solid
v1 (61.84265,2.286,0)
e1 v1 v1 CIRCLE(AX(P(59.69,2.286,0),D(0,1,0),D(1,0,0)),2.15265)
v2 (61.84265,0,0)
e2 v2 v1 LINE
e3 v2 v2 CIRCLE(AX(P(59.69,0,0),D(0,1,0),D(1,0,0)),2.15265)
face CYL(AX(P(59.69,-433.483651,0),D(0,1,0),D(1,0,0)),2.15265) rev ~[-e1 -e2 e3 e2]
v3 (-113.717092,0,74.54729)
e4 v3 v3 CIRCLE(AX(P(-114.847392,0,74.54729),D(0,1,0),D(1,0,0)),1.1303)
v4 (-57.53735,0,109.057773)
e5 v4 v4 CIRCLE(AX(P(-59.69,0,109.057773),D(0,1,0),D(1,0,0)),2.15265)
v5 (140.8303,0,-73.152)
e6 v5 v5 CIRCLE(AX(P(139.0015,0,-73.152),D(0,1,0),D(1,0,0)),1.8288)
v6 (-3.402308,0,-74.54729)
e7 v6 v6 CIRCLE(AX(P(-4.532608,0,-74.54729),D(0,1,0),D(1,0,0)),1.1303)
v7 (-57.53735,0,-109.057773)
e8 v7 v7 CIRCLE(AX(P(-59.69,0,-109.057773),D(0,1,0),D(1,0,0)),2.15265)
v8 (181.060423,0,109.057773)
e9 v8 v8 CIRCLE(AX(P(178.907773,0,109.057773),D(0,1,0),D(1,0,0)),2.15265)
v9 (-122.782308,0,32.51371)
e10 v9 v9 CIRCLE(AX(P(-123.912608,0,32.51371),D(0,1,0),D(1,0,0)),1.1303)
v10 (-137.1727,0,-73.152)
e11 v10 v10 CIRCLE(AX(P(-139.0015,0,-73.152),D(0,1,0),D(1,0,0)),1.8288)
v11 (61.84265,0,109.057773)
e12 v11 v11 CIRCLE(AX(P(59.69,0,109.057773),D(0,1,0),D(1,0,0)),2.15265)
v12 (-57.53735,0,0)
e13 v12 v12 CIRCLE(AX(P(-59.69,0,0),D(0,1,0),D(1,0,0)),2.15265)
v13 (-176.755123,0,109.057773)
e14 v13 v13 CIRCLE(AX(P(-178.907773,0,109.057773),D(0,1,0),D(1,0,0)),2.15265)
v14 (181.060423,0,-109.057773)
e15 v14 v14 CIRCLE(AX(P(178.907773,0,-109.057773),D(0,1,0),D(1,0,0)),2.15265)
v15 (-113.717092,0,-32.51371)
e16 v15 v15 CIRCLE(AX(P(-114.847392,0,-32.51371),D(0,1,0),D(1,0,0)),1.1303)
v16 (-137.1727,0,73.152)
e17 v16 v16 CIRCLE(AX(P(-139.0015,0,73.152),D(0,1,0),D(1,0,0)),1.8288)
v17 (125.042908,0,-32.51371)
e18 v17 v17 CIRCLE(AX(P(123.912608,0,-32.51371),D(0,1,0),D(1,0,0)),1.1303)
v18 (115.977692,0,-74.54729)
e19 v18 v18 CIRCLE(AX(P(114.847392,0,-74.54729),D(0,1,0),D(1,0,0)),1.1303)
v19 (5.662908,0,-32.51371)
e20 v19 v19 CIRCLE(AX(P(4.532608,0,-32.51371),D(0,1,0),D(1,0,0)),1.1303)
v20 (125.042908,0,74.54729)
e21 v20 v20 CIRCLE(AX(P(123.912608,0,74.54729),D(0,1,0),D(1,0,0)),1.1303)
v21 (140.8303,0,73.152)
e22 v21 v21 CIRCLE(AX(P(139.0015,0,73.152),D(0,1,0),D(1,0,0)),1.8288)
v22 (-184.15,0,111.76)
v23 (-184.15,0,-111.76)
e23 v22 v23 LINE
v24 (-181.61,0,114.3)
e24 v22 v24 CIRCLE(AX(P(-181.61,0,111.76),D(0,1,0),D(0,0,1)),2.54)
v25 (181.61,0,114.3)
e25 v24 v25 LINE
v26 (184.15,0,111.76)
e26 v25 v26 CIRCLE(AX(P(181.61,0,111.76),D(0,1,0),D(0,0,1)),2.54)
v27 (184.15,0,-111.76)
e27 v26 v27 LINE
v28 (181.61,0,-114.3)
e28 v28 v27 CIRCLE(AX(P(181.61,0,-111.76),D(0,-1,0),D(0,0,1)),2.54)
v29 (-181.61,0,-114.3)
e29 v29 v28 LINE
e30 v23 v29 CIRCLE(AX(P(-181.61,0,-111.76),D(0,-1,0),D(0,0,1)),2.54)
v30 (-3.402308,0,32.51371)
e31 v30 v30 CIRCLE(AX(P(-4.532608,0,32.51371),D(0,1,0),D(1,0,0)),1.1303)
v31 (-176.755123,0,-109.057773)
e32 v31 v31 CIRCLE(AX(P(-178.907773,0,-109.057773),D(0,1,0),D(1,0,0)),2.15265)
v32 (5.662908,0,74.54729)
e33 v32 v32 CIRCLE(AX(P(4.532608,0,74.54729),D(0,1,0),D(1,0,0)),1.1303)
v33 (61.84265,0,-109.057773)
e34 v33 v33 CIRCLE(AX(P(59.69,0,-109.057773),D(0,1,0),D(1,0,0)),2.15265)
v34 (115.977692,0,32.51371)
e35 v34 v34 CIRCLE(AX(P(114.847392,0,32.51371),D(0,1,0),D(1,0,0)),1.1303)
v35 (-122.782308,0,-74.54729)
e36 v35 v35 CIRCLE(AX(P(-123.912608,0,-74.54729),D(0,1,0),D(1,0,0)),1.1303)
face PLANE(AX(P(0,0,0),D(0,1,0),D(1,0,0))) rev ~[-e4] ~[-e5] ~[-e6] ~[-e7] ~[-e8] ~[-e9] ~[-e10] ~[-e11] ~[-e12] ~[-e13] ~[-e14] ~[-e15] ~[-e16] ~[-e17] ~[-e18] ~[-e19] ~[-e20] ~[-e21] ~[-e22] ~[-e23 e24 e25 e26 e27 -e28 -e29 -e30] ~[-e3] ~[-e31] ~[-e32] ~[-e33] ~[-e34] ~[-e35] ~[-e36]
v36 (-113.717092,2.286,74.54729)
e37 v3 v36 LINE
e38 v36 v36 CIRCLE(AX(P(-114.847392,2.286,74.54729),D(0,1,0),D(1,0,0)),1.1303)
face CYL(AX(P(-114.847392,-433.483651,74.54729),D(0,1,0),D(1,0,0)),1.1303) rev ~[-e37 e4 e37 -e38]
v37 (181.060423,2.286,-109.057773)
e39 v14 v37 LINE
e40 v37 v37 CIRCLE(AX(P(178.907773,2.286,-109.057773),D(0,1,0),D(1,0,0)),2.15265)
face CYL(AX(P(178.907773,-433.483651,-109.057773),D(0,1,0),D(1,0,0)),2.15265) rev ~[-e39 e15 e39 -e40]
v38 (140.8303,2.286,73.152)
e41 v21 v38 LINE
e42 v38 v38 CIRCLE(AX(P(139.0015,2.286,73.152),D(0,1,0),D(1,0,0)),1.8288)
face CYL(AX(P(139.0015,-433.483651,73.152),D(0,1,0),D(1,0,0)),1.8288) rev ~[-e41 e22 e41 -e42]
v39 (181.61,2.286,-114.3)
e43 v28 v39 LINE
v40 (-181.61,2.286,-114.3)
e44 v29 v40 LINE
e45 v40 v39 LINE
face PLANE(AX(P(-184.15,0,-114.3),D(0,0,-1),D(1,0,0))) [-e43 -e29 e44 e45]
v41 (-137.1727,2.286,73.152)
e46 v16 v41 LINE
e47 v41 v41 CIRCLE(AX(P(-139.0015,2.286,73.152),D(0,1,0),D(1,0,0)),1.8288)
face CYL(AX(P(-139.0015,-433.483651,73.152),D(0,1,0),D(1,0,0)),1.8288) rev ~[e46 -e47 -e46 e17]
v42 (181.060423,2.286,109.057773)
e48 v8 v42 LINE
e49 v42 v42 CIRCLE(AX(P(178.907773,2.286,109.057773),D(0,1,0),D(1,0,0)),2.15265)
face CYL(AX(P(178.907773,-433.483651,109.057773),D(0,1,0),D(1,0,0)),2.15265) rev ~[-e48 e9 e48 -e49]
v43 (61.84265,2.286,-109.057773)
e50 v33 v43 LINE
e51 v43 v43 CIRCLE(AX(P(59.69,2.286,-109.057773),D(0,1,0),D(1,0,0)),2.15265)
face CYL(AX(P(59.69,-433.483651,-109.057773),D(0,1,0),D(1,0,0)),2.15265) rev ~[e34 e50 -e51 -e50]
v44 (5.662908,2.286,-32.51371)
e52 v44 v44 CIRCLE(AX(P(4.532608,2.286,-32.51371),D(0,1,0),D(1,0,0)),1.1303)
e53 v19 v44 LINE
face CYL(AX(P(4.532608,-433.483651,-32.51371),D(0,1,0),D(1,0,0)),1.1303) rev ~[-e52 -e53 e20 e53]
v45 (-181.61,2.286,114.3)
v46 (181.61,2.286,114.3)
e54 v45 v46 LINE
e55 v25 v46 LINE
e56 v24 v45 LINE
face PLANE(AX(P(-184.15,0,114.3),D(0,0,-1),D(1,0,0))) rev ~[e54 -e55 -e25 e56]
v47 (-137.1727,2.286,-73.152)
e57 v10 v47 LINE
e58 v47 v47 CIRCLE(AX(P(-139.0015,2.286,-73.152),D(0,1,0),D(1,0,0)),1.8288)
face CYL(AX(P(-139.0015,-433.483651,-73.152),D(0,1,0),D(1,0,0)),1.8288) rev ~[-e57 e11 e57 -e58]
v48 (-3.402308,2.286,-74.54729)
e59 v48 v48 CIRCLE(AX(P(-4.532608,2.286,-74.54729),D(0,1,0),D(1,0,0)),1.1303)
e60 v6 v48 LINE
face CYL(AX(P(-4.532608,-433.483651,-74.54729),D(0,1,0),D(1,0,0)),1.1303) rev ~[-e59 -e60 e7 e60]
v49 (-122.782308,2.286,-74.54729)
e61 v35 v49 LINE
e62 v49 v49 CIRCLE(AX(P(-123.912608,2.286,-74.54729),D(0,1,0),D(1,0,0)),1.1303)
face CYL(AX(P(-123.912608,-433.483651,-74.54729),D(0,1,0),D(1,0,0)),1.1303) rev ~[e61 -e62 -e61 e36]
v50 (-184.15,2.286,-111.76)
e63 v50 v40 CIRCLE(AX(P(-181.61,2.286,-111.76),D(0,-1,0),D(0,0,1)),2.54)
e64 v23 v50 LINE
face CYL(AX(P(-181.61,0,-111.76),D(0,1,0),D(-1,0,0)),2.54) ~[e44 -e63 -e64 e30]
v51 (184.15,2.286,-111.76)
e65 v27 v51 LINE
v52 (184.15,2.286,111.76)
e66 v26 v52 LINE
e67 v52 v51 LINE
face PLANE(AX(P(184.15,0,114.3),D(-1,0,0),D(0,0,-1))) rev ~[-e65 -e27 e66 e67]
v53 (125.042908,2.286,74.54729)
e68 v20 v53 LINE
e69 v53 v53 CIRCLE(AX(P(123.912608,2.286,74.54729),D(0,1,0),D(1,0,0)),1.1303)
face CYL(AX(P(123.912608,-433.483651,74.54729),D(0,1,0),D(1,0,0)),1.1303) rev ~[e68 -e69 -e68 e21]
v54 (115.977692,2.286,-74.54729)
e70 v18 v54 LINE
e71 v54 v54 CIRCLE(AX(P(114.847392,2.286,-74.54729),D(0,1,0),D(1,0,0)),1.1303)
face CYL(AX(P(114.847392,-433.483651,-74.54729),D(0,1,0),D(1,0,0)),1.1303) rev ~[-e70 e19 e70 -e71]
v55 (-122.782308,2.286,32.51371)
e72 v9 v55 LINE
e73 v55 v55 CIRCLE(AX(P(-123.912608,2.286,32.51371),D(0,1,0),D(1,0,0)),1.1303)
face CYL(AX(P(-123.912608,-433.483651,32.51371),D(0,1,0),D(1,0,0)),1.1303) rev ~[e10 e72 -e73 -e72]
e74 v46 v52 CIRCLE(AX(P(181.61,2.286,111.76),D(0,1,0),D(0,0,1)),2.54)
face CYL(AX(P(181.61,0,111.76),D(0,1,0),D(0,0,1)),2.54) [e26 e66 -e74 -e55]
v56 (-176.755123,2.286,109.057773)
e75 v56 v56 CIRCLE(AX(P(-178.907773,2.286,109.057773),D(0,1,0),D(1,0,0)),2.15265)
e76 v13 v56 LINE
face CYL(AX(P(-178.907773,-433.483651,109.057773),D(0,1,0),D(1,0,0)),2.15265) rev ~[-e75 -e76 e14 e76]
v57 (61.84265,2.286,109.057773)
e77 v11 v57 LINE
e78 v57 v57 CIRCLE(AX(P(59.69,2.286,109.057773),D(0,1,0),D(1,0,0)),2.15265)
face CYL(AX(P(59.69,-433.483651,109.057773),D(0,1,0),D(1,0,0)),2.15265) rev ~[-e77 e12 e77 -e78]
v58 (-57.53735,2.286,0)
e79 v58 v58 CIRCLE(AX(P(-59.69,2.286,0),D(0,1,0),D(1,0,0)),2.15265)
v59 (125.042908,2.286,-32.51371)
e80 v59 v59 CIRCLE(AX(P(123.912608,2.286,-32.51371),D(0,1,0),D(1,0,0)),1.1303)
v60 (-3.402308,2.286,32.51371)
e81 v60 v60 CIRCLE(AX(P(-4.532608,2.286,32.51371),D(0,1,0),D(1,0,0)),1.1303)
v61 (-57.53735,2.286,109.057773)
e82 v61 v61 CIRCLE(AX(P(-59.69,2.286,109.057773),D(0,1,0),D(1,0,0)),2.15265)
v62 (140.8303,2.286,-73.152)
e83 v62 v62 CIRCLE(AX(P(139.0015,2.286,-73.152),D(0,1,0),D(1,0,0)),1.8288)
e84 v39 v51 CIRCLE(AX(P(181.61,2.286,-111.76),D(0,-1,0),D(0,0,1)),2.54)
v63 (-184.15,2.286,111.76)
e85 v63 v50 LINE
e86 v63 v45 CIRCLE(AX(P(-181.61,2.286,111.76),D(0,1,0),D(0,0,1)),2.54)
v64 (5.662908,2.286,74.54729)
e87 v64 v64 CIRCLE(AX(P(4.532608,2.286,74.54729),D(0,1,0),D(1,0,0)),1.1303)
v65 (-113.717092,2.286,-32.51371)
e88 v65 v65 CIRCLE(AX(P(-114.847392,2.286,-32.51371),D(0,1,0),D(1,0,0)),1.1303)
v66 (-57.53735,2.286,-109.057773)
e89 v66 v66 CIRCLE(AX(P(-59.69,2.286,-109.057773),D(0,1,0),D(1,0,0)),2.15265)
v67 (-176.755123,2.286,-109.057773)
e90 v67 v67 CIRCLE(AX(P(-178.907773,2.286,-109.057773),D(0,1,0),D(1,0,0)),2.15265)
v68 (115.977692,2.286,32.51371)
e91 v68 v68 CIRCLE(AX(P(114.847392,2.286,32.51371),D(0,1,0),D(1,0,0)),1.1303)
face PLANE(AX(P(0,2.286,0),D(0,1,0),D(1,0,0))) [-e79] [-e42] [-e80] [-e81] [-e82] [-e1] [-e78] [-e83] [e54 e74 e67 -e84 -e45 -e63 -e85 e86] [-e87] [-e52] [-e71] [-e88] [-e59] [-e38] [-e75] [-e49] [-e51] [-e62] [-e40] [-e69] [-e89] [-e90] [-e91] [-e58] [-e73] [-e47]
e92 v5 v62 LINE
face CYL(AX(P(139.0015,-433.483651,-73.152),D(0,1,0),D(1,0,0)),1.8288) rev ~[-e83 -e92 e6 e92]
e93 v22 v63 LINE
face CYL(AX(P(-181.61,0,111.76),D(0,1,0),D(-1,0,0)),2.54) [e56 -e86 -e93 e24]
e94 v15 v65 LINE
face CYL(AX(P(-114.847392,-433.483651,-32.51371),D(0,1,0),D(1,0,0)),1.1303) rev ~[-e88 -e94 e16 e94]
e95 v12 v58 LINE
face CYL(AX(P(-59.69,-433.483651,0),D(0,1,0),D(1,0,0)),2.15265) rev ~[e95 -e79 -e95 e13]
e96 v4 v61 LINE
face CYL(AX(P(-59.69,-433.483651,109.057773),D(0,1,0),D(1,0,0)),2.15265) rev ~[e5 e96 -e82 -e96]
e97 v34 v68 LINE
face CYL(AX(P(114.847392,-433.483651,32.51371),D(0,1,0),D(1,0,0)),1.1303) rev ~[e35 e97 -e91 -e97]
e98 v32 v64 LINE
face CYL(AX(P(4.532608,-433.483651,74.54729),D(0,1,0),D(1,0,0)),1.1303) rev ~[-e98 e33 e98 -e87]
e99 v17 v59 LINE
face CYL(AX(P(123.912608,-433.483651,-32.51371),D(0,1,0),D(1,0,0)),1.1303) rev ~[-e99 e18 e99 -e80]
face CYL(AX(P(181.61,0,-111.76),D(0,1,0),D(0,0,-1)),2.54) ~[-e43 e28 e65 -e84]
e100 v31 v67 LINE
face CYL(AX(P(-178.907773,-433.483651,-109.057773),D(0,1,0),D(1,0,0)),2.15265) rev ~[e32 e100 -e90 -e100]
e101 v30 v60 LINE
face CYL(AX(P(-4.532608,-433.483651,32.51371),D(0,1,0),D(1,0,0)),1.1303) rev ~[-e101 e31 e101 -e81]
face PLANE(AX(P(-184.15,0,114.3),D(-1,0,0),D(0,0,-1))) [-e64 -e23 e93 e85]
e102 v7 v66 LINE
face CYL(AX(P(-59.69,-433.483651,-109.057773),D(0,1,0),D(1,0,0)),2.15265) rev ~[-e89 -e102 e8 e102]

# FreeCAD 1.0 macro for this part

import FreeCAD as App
import Part
import Sketcher

V = App.Vector
Q = App.Units.Quantity


def edges_at(feature, points):
    """Names of the edges that pass closest to the given points."""
    edges = feature.Shape.Edges
    near = lambda p: min(range(len(edges)), key=lambda i: edges[i].distToShape(Part.Vertex(*p))[0])
    return sorted({f"Edge{near(p) + 1}" for p in points})


def add_polygon(sketch, points):
    """Adds a closed chain of lines whose ends are joined by coincident constraints."""
    first, n = sketch.GeometryCount, len(points)
    for a, b in zip(points, points[1:] + points[:1]):
        sketch.addGeometry(Part.LineSegment(App.Vector(*a, 0), App.Vector(*b, 0)), False)
    for i in range(n):
        sketch.addConstraint(Sketcher.Constraint("Coincident", first + i, 2, first + (i + 1) % n, 1))

doc = App.newDocument("Part")
body = doc.addObject("PartDesign::Body", "Body")

sketch1 = doc.addObject("Sketcher::SketchObject", "Sketch")
body.addObject(sketch1)
sketch1.AttachmentSupport = (doc.XZ_Plane, [""])
sketch1.MapMode = "FlatFace"
add_polygon(sketch1, [(-184.15, -114.3), (-184.15, 114.3), (184.15, 114.3), (184.15, -114.3)])
sketch1.addConstraint([
    Sketcher.Constraint("Vertical", 0),
    Sketcher.Constraint("Horizontal", 1),
    Sketcher.Constraint("Vertical", 2),
    Sketcher.Constraint("Horizontal", 3),
    Sketcher.Constraint("Symmetric", 0, 2, 2, 2, -1, 1),
    Sketcher.Constraint("DistanceY", 0, 1, 0, 2, Q("9 in")),
    Sketcher.Constraint("DistanceX", 1, 1, 1, 2, Q("14.5 in")),
])
pad1 = doc.addObject("PartDesign::Pad", "Pad")
body.addObject(pad1)
pad1.Profile = sketch1
pad1.Length = Q("0.09 in")
pad1.Reversed = True

sketch2 = doc.addObject("Sketcher::SketchObject", "Sketch001")
body.addObject(sketch2)
sketch2.AttachmentSupport = (doc.XZ_Plane, [""])
sketch2.MapMode = "FlatFace"
sketch2.addGeometry([
    Part.Circle(V(139.0015, -73.152, 0), V(0, 0, 1), 1.8288),
    Part.Circle(V(-139.0015, -73.152, 0), V(0, 0, 1), 1.8288),
    Part.Circle(V(-139.0015, 73.152, 0), V(0, 0, 1), 1.8288),
    Part.Circle(V(139.0015, 73.152, 0), V(0, 0, 1), 1.8288),
], False)
sketch2.addConstraint([
    Sketcher.Constraint("Equal", 0, 1),
    Sketcher.Constraint("Equal", 1, 2),
    Sketcher.Constraint("Equal", 2, 3),
    Sketcher.Constraint("Symmetric", 0, 3, 2, 3, -1, 1),
    Sketcher.Constraint("Symmetric", 1, 3, 3, 3, -1, 1),
    Sketcher.Constraint("Symmetric", 0, 3, 1, 3, -2),
    Sketcher.Constraint("Diameter", 0, Q("0.144 in")),
    Sketcher.Constraint("DistanceY", 0, 3, -1, 1, Q("2.88 in")),
    Sketcher.Constraint("DistanceX", 1, 3, 0, 3, Q("10.945 in")),
])
doc.recompute()
hole = doc.addObject("PartDesign::Hole", "Hole")
body.addObject(hole)
hole.Profile = sketch2
hole.ThreadType = "None"
hole.Diameter = Q("0.144 in")
hole.DepthType = "ThroughAll"

sketch3 = doc.addObject("Sketcher::SketchObject", "Sketch002")
body.addObject(sketch3)
sketch3.AttachmentSupport = (doc.XZ_Plane, [""])
sketch3.MapMode = "FlatFace"
sketch3.addGeometry([
    Part.Circle(V(114.847392, -74.54729, 0), V(0, 0, 1), 1.1303),
    Part.Circle(V(123.912608, -32.51371, 0), V(0, 0, 1), 1.1303),
    Part.Circle(V(-4.532608, -74.54729, 0), V(0, 0, 1), 1.1303),
    Part.Circle(V(4.532608, -32.51371, 0), V(0, 0, 1), 1.1303),
    Part.Circle(V(-123.912608, -74.54729, 0), V(0, 0, 1), 1.1303),
    Part.Circle(V(-114.847392, -32.51371, 0), V(0, 0, 1), 1.1303),
    Part.Circle(V(-123.912608, 32.51371, 0), V(0, 0, 1), 1.1303),
    Part.Circle(V(-114.847392, 74.54729, 0), V(0, 0, 1), 1.1303),
    Part.Circle(V(-4.532608, 32.51371, 0), V(0, 0, 1), 1.1303),
    Part.Circle(V(4.532608, 74.54729, 0), V(0, 0, 1), 1.1303),
    Part.Circle(V(114.847392, 32.51371, 0), V(0, 0, 1), 1.1303),
    Part.Circle(V(123.912608, 74.54729, 0), V(0, 0, 1), 1.1303),
], False)
sketch3.addConstraint([
    Sketcher.Constraint("Equal", 0, 1),
    Sketcher.Constraint("Equal", 1, 2),
    Sketcher.Constraint("Equal", 2, 3),
    Sketcher.Constraint("Equal", 3, 4),
    Sketcher.Constraint("Equal", 4, 5),
    Sketcher.Constraint("Equal", 5, 6),
    Sketcher.Constraint("Equal", 6, 7),
    Sketcher.Constraint("Equal", 7, 8),
    Sketcher.Constraint("Equal", 8, 9),
    Sketcher.Constraint("Equal", 9, 10),
    Sketcher.Constraint("Equal", 10, 11),
    Sketcher.Constraint("Symmetric", 1, 3, 6, 3, -1, 1),
    Sketcher.Constraint("Symmetric", 0, 3, 7, 3, -1, 1),
    Sketcher.Constraint("Symmetric", 3, 3, 8, 3, -1, 1),
    Sketcher.Constraint("Symmetric", 2, 3, 9, 3, -1, 1),
    Sketcher.Constraint("Symmetric", 5, 3, 10, 3, -1, 1),
    Sketcher.Constraint("Symmetric", 4, 3, 11, 3, -1, 1),
    Sketcher.Constraint("Horizontal", 0, 3, 2, 3),
    Sketcher.Constraint("Horizontal", 1, 3, 3, 3),
    Sketcher.Constraint("Horizontal", 2, 3, 4, 3),
    Sketcher.Constraint("Horizontal", 3, 3, 5, 3),
    Sketcher.Constraint("Vertical", 4, 3, 6, 3),
    Sketcher.Constraint("Vertical", 5, 3, 7, 3),
    Sketcher.Constraint("Vertical", 2, 3, 8, 3),
    Sketcher.Constraint("Diameter", 0, Q("0.089 in")),
    Sketcher.Constraint("DistanceX", 2, 3, 0, 3, Q("4.7 in")),
    Sketcher.Constraint("DistanceX", 3, 3, 1, 3, Q("4.7 in")),
    Sketcher.Constraint("DistanceY", 4, 3, 6, 3, Q("4.215 in")),
    Sketcher.Constraint("DistanceX", -1, 1, 0, 3, 114.847392),
    Sketcher.Constraint("DistanceY", 0, 3, -1, 1, 74.54729),
])
doc.recompute()
hole2 = doc.addObject("PartDesign::Hole", "Hole001")
body.addObject(hole2)
hole2.Profile = sketch3
hole2.ThreadType = "None"
hole2.Diameter = Q("0.089 in")
hole2.DepthType = "ThroughAll"
doc.recompute()

fillet = doc.addObject("PartDesign::Fillet", "Fillet")
body.addObject(fillet)
fillet.Base = (hole2, edges_at(hole2, [
    (184.15, 1.143, 114.3),
    (-184.15, 1.143, 114.3),
    (-184.15, 1.143, -114.3),
    (184.15, 1.143, -114.3),
]))
fillet.Radius = Q("0.1 in")

sketch4 = doc.addObject("Sketcher::SketchObject", "Sketch003")
body.addObject(sketch4)
sketch4.AttachmentSupport = (doc.XZ_Plane, [""])
sketch4.MapMode = "FlatFace"
sketch4.addGeometry([
    Part.Circle(V(-59.69, 0, 0), V(0, 0, 1), 2.15265),
    Part.Circle(V(178.907773, -109.057773, 0), V(0, 0, 1), 2.15265),
    Part.Circle(V(-178.907773, 109.057773, 0), V(0, 0, 1), 2.15265),
    Part.Circle(V(178.907773, 109.057773, 0), V(0, 0, 1), 2.15265),
    Part.Circle(V(-178.907773, -109.057773, 0), V(0, 0, 1), 2.15265),
    Part.Circle(V(59.69, 109.057773, 0), V(0, 0, 1), 2.15265),
    Part.Circle(V(59.69, -109.057773, 0), V(0, 0, 1), 2.15265),
    Part.Circle(V(-59.69, 109.057773, 0), V(0, 0, 1), 2.15265),
    Part.Circle(V(-59.69, -109.057773, 0), V(0, 0, 1), 2.15265),
    Part.Circle(V(59.69, 0, 0), V(0, 0, 1), 2.15265),
], False)
sketch4.addConstraint([
    Sketcher.Constraint("Equal", 0, 1),
    Sketcher.Constraint("Equal", 1, 2),
    Sketcher.Constraint("Equal", 2, 3),
    Sketcher.Constraint("Equal", 3, 4),
    Sketcher.Constraint("Equal", 4, 5),
    Sketcher.Constraint("Equal", 5, 6),
    Sketcher.Constraint("Equal", 6, 7),
    Sketcher.Constraint("Equal", 7, 8),
    Sketcher.Constraint("Equal", 8, 9),
    Sketcher.Constraint("Symmetric", 1, 3, 2, 3, -1, 1),
    Sketcher.Constraint("Symmetric", 3, 3, 4, 3, -1, 1),
    Sketcher.Constraint("Symmetric", 6, 3, 7, 3, -1, 1),
    Sketcher.Constraint("Symmetric", 5, 3, 8, 3, -1, 1),
    Sketcher.Constraint("Symmetric", 0, 3, 9, 3, -1, 1),
    Sketcher.Constraint("Symmetric", 2, 3, 3, 3, -2),
    Sketcher.Constraint("Symmetric", 5, 3, 7, 3, -2),
    Sketcher.Constraint("PointOnObject", 0, 3, -1),
    Sketcher.Constraint("Horizontal", 3, 3, 5, 3),
    Sketcher.Constraint("Vertical", 0, 3, 7, 3),
    Sketcher.Constraint("Diameter", 0, Q("0.1695 in")),
    Sketcher.Constraint("DistanceX", 0, 3, 5, 3, Q("4.7 in")),
    Sketcher.Constraint("DistanceX", -1, 1, 1, 3, 178.907773),
    Sketcher.Constraint("DistanceY", 1, 3, -1, 1, 109.057773),
])
doc.recompute()
hole3 = doc.addObject("PartDesign::Hole", "Hole002")
body.addObject(hole3)
hole3.Profile = sketch4
hole3.ThreadType = "None"
hole3.Diameter = Q("0.1695 in")
hole3.DepthType = "ThroughAll"

doc.recompute()
